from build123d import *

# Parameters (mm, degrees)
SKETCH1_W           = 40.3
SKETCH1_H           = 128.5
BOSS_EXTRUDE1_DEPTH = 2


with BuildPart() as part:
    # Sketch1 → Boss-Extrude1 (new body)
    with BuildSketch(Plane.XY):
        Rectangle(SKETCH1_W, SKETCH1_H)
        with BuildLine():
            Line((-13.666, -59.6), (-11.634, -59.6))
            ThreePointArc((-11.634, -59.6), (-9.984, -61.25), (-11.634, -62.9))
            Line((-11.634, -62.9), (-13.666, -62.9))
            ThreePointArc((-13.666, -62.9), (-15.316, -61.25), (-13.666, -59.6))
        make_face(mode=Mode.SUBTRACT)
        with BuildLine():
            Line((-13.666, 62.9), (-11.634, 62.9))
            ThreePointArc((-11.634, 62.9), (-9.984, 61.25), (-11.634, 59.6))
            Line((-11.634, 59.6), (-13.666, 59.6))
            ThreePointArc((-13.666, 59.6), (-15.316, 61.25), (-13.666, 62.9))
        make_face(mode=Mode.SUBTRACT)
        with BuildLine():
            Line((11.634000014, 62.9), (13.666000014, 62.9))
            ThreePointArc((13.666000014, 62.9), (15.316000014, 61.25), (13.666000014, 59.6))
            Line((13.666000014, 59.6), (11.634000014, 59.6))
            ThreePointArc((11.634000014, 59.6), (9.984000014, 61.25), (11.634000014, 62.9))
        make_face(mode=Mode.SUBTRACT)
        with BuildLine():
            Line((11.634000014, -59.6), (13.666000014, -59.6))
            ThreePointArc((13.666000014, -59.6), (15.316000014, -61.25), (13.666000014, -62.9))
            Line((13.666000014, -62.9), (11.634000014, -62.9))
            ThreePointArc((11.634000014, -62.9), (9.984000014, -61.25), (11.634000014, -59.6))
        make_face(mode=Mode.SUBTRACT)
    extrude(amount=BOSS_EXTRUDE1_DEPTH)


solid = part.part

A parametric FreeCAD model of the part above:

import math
import FreeCAD as App
import Part
import Sketcher
from FreeCAD import Vector


def add_polygon(sketch, points):
    """Adds a closed chain of lines whose ends are joined by coincident constraints."""
    first, n = sketch.GeometryCount, len(points)
    for a, b in zip(points, points[1:] + points[:1]):
        sketch.addGeometry(Part.LineSegment(App.Vector(*a, 0), App.Vector(*b, 0)), False)
    for i in range(n):
        sketch.addConstraint(Sketcher.Constraint("Coincident", first + i, 2, first + (i + 1) % n, 1))

doc = App.newDocument("Part")
body = doc.addObject("PartDesign::Body", "Body")

# Sketch on XY plane
sketch1 = body.newObject("Sketcher::SketchObject", "Sketch")
sketch1.AttachmentSupport = (doc.getObject("XY_Plane"), [""])
sketch1.MapMode = "FlatFace"
add_polygon(sketch1, [(-20.1, 64.2), (-20.1, -64.2), (20.1, -64.2), (20.1, 64.2)])  # lines 0-3
sketch1.addGeometry(Part.ArcOfCircle(Part.Circle(Vector(-13.7, -61.2, 0), Vector(0, 0, 1), 1.6), math.radians(90), math.radians(270)), False)  # 4
sketch1.addGeometry(Part.LineSegment(Vector(-13.7, -59.6, 0), Vector(-11.6, -59.6, 0)), False)  # 5
sketch1.addGeometry(Part.ArcOfCircle(Part.Circle(Vector(-11.6, -61.2, 0), Vector(0, 0, 1), 1.6), math.radians(-90), math.radians(90)), False)  # 6
sketch1.addGeometry(Part.LineSegment(Vector(-11.6, -62.9, 0), Vector(-13.7, -62.9, 0)), False)  # 7
sketch1.addGeometry(Part.ArcOfCircle(Part.Circle(Vector(11.6, -61.2, 0), Vector(0, 0, 1), 1.6), math.radians(90), math.radians(270)), False)  # 8
sketch1.addGeometry(Part.LineSegment(Vector(11.6, -59.6, 0), Vector(13.7, -59.6, 0)), False)  # 9
sketch1.addGeometry(Part.ArcOfCircle(Part.Circle(Vector(13.7, -61.2, 0), Vector(0, 0, 1), 1.6), math.radians(-90), math.radians(90)), False)  # 10
sketch1.addGeometry(Part.LineSegment(Vector(13.7, -62.9, 0), Vector(11.6, -62.9, 0)), False)  # 11
sketch1.addGeometry(Part.ArcOfCircle(Part.Circle(Vector(-13.7, 61.2, 0), Vector(0, 0, 1), 1.6), math.radians(90), math.radians(270)), False)  # 12
sketch1.addGeometry(Part.LineSegment(Vector(-13.7, 62.9, 0), Vector(-11.6, 62.9, 0)), False)  # 13
sketch1.addGeometry(Part.ArcOfCircle(Part.Circle(Vector(-11.6, 61.2, 0), Vector(0, 0, 1), 1.6), math.radians(-90), math.radians(90)), False)  # 14
sketch1.addGeometry(Part.LineSegment(Vector(-11.6, 59.6, 0), Vector(-13.7, 59.6, 0)), False)  # 15
sketch1.addGeometry(Part.ArcOfCircle(Part.Circle(Vector(11.6, 61.2, 0), Vector(0, 0, 1), 1.6), math.radians(90), math.radians(270)), False)  # 16
sketch1.addGeometry(Part.LineSegment(Vector(11.6, 62.9, 0), Vector(13.7, 62.9, 0)), False)  # 17
sketch1.addGeometry(Part.ArcOfCircle(Part.Circle(Vector(13.7, 61.2, 0), Vector(0, 0, 1), 1.6), math.radians(-90), math.radians(90)), False)  # 18
sketch1.addGeometry(Part.LineSegment(Vector(13.7, 59.6, 0), Vector(11.6, 59.6, 0)), False)  # 19
sketch1.addConstraint(Sketcher.Constraint("Tangent", 4, 1, 5, 1))
sketch1.addConstraint(Sketcher.Constraint("Tangent", 5, 2, 6, 2))
sketch1.addConstraint(Sketcher.Constraint("Tangent", 6, 1, 7, 1))
sketch1.addConstraint(Sketcher.Constraint("Tangent", 7, 2, 4, 2))
sketch1.addConstraint(Sketcher.Constraint("Tangent", 8, 1, 9, 1))
sketch1.addConstraint(Sketcher.Constraint("Tangent", 9, 2, 10, 2))
sketch1.addConstraint(Sketcher.Constraint("Tangent", 10, 1, 11, 1))
sketch1.addConstraint(Sketcher.Constraint("Tangent", 11, 2, 8, 2))
sketch1.addConstraint(Sketcher.Constraint("Tangent", 12, 1, 13, 1))
sketch1.addConstraint(Sketcher.Constraint("Tangent", 13, 2, 14, 2))
sketch1.addConstraint(Sketcher.Constraint("Tangent", 14, 1, 15, 1))
sketch1.addConstraint(Sketcher.Constraint("Tangent", 15, 2, 12, 2))
sketch1.addConstraint(Sketcher.Constraint("Tangent", 16, 1, 17, 1))
sketch1.addConstraint(Sketcher.Constraint("Tangent", 17, 2, 18, 2))
sketch1.addConstraint(Sketcher.Constraint("Tangent", 18, 1, 19, 1))
sketch1.addConstraint(Sketcher.Constraint("Tangent", 19, 2, 16, 2))
sketch1.addConstraint(Sketcher.Constraint("Vertical", 0))
sketch1.addConstraint(Sketcher.Constraint("Horizontal", 1))
sketch1.addConstraint(Sketcher.Constraint("Vertical", 2))
sketch1.addConstraint(Sketcher.Constraint("Horizontal", 3))
sketch1.addConstraint(Sketcher.Constraint("Horizontal", 5))
sketch1.addConstraint(Sketcher.Constraint("Horizontal", 7))
sketch1.addConstraint(Sketcher.Constraint("Horizontal", 9))
sketch1.addConstraint(Sketcher.Constraint("Horizontal", 11))
sketch1.addConstraint(Sketcher.Constraint("Horizontal", 13))
sketch1.addConstraint(Sketcher.Constraint("Horizontal", 15))
sketch1.addConstraint(Sketcher.Constraint("Horizontal", 17))
sketch1.addConstraint(Sketcher.Constraint("Horizontal", 19))
sketch1.addConstraint(Sketcher.Constraint("Equal", 6, 8))
sketch1.addConstraint(Sketcher.Constraint("Equal", 10, 12))
sketch1.addConstraint(Sketcher.Constraint("Equal", 14, 16))
sketch1.addConstraint(Sketcher.Constraint("Symmetric", 10, 3, 12, 3, -1, 1))
sketch1.addConstraint(Sketcher.Constraint("Symmetric", 6, 3, 16, 3, -1, 1))
sketch1.addConstraint(Sketcher.Constraint("Symmetric", 0, 2, 2, 2, -1, 1))
sketch1.addConstraint(Sketcher.Constraint("Symmetric", 6, 3, 8, 3, -2))
sketch1.addConstraint(Sketcher.Constraint("Vertical", 4, 3, 12, 3))
sketch1.addConstraint(Sketcher.Constraint("Vertical", 6, 3, 14, 3))
sketch1.addConstraint(Sketcher.Constraint("Vertical", 10, 3, 18, 3))
sketch1.addConstraint(Sketcher.Constraint("Radius", 4, 1.65))
sketch1.addConstraint(Sketcher.Constraint("DistanceX", 1, 1, 1, 2, 40.3))
sketch1.addConstraint(Sketcher.Constraint("DistanceY", 0, 2, 0, 1, 128.5))
sketch1.addConstraint(Sketcher.Constraint("DistanceY", 0, 2, 4, 3, 3.0))
sketch1.addConstraint(Sketcher.Constraint("DistanceX", 4, 3, 8, 3, 25.3))
sketch1.addConstraint(Sketcher.Constraint("DistanceX", 5, 1, 5, 2, 2.032))
pad1 = body.newObject("PartDesign::Pad", "Pad")
pad1.Profile = sketch1
pad1.Length = 2

doc.recompute()
